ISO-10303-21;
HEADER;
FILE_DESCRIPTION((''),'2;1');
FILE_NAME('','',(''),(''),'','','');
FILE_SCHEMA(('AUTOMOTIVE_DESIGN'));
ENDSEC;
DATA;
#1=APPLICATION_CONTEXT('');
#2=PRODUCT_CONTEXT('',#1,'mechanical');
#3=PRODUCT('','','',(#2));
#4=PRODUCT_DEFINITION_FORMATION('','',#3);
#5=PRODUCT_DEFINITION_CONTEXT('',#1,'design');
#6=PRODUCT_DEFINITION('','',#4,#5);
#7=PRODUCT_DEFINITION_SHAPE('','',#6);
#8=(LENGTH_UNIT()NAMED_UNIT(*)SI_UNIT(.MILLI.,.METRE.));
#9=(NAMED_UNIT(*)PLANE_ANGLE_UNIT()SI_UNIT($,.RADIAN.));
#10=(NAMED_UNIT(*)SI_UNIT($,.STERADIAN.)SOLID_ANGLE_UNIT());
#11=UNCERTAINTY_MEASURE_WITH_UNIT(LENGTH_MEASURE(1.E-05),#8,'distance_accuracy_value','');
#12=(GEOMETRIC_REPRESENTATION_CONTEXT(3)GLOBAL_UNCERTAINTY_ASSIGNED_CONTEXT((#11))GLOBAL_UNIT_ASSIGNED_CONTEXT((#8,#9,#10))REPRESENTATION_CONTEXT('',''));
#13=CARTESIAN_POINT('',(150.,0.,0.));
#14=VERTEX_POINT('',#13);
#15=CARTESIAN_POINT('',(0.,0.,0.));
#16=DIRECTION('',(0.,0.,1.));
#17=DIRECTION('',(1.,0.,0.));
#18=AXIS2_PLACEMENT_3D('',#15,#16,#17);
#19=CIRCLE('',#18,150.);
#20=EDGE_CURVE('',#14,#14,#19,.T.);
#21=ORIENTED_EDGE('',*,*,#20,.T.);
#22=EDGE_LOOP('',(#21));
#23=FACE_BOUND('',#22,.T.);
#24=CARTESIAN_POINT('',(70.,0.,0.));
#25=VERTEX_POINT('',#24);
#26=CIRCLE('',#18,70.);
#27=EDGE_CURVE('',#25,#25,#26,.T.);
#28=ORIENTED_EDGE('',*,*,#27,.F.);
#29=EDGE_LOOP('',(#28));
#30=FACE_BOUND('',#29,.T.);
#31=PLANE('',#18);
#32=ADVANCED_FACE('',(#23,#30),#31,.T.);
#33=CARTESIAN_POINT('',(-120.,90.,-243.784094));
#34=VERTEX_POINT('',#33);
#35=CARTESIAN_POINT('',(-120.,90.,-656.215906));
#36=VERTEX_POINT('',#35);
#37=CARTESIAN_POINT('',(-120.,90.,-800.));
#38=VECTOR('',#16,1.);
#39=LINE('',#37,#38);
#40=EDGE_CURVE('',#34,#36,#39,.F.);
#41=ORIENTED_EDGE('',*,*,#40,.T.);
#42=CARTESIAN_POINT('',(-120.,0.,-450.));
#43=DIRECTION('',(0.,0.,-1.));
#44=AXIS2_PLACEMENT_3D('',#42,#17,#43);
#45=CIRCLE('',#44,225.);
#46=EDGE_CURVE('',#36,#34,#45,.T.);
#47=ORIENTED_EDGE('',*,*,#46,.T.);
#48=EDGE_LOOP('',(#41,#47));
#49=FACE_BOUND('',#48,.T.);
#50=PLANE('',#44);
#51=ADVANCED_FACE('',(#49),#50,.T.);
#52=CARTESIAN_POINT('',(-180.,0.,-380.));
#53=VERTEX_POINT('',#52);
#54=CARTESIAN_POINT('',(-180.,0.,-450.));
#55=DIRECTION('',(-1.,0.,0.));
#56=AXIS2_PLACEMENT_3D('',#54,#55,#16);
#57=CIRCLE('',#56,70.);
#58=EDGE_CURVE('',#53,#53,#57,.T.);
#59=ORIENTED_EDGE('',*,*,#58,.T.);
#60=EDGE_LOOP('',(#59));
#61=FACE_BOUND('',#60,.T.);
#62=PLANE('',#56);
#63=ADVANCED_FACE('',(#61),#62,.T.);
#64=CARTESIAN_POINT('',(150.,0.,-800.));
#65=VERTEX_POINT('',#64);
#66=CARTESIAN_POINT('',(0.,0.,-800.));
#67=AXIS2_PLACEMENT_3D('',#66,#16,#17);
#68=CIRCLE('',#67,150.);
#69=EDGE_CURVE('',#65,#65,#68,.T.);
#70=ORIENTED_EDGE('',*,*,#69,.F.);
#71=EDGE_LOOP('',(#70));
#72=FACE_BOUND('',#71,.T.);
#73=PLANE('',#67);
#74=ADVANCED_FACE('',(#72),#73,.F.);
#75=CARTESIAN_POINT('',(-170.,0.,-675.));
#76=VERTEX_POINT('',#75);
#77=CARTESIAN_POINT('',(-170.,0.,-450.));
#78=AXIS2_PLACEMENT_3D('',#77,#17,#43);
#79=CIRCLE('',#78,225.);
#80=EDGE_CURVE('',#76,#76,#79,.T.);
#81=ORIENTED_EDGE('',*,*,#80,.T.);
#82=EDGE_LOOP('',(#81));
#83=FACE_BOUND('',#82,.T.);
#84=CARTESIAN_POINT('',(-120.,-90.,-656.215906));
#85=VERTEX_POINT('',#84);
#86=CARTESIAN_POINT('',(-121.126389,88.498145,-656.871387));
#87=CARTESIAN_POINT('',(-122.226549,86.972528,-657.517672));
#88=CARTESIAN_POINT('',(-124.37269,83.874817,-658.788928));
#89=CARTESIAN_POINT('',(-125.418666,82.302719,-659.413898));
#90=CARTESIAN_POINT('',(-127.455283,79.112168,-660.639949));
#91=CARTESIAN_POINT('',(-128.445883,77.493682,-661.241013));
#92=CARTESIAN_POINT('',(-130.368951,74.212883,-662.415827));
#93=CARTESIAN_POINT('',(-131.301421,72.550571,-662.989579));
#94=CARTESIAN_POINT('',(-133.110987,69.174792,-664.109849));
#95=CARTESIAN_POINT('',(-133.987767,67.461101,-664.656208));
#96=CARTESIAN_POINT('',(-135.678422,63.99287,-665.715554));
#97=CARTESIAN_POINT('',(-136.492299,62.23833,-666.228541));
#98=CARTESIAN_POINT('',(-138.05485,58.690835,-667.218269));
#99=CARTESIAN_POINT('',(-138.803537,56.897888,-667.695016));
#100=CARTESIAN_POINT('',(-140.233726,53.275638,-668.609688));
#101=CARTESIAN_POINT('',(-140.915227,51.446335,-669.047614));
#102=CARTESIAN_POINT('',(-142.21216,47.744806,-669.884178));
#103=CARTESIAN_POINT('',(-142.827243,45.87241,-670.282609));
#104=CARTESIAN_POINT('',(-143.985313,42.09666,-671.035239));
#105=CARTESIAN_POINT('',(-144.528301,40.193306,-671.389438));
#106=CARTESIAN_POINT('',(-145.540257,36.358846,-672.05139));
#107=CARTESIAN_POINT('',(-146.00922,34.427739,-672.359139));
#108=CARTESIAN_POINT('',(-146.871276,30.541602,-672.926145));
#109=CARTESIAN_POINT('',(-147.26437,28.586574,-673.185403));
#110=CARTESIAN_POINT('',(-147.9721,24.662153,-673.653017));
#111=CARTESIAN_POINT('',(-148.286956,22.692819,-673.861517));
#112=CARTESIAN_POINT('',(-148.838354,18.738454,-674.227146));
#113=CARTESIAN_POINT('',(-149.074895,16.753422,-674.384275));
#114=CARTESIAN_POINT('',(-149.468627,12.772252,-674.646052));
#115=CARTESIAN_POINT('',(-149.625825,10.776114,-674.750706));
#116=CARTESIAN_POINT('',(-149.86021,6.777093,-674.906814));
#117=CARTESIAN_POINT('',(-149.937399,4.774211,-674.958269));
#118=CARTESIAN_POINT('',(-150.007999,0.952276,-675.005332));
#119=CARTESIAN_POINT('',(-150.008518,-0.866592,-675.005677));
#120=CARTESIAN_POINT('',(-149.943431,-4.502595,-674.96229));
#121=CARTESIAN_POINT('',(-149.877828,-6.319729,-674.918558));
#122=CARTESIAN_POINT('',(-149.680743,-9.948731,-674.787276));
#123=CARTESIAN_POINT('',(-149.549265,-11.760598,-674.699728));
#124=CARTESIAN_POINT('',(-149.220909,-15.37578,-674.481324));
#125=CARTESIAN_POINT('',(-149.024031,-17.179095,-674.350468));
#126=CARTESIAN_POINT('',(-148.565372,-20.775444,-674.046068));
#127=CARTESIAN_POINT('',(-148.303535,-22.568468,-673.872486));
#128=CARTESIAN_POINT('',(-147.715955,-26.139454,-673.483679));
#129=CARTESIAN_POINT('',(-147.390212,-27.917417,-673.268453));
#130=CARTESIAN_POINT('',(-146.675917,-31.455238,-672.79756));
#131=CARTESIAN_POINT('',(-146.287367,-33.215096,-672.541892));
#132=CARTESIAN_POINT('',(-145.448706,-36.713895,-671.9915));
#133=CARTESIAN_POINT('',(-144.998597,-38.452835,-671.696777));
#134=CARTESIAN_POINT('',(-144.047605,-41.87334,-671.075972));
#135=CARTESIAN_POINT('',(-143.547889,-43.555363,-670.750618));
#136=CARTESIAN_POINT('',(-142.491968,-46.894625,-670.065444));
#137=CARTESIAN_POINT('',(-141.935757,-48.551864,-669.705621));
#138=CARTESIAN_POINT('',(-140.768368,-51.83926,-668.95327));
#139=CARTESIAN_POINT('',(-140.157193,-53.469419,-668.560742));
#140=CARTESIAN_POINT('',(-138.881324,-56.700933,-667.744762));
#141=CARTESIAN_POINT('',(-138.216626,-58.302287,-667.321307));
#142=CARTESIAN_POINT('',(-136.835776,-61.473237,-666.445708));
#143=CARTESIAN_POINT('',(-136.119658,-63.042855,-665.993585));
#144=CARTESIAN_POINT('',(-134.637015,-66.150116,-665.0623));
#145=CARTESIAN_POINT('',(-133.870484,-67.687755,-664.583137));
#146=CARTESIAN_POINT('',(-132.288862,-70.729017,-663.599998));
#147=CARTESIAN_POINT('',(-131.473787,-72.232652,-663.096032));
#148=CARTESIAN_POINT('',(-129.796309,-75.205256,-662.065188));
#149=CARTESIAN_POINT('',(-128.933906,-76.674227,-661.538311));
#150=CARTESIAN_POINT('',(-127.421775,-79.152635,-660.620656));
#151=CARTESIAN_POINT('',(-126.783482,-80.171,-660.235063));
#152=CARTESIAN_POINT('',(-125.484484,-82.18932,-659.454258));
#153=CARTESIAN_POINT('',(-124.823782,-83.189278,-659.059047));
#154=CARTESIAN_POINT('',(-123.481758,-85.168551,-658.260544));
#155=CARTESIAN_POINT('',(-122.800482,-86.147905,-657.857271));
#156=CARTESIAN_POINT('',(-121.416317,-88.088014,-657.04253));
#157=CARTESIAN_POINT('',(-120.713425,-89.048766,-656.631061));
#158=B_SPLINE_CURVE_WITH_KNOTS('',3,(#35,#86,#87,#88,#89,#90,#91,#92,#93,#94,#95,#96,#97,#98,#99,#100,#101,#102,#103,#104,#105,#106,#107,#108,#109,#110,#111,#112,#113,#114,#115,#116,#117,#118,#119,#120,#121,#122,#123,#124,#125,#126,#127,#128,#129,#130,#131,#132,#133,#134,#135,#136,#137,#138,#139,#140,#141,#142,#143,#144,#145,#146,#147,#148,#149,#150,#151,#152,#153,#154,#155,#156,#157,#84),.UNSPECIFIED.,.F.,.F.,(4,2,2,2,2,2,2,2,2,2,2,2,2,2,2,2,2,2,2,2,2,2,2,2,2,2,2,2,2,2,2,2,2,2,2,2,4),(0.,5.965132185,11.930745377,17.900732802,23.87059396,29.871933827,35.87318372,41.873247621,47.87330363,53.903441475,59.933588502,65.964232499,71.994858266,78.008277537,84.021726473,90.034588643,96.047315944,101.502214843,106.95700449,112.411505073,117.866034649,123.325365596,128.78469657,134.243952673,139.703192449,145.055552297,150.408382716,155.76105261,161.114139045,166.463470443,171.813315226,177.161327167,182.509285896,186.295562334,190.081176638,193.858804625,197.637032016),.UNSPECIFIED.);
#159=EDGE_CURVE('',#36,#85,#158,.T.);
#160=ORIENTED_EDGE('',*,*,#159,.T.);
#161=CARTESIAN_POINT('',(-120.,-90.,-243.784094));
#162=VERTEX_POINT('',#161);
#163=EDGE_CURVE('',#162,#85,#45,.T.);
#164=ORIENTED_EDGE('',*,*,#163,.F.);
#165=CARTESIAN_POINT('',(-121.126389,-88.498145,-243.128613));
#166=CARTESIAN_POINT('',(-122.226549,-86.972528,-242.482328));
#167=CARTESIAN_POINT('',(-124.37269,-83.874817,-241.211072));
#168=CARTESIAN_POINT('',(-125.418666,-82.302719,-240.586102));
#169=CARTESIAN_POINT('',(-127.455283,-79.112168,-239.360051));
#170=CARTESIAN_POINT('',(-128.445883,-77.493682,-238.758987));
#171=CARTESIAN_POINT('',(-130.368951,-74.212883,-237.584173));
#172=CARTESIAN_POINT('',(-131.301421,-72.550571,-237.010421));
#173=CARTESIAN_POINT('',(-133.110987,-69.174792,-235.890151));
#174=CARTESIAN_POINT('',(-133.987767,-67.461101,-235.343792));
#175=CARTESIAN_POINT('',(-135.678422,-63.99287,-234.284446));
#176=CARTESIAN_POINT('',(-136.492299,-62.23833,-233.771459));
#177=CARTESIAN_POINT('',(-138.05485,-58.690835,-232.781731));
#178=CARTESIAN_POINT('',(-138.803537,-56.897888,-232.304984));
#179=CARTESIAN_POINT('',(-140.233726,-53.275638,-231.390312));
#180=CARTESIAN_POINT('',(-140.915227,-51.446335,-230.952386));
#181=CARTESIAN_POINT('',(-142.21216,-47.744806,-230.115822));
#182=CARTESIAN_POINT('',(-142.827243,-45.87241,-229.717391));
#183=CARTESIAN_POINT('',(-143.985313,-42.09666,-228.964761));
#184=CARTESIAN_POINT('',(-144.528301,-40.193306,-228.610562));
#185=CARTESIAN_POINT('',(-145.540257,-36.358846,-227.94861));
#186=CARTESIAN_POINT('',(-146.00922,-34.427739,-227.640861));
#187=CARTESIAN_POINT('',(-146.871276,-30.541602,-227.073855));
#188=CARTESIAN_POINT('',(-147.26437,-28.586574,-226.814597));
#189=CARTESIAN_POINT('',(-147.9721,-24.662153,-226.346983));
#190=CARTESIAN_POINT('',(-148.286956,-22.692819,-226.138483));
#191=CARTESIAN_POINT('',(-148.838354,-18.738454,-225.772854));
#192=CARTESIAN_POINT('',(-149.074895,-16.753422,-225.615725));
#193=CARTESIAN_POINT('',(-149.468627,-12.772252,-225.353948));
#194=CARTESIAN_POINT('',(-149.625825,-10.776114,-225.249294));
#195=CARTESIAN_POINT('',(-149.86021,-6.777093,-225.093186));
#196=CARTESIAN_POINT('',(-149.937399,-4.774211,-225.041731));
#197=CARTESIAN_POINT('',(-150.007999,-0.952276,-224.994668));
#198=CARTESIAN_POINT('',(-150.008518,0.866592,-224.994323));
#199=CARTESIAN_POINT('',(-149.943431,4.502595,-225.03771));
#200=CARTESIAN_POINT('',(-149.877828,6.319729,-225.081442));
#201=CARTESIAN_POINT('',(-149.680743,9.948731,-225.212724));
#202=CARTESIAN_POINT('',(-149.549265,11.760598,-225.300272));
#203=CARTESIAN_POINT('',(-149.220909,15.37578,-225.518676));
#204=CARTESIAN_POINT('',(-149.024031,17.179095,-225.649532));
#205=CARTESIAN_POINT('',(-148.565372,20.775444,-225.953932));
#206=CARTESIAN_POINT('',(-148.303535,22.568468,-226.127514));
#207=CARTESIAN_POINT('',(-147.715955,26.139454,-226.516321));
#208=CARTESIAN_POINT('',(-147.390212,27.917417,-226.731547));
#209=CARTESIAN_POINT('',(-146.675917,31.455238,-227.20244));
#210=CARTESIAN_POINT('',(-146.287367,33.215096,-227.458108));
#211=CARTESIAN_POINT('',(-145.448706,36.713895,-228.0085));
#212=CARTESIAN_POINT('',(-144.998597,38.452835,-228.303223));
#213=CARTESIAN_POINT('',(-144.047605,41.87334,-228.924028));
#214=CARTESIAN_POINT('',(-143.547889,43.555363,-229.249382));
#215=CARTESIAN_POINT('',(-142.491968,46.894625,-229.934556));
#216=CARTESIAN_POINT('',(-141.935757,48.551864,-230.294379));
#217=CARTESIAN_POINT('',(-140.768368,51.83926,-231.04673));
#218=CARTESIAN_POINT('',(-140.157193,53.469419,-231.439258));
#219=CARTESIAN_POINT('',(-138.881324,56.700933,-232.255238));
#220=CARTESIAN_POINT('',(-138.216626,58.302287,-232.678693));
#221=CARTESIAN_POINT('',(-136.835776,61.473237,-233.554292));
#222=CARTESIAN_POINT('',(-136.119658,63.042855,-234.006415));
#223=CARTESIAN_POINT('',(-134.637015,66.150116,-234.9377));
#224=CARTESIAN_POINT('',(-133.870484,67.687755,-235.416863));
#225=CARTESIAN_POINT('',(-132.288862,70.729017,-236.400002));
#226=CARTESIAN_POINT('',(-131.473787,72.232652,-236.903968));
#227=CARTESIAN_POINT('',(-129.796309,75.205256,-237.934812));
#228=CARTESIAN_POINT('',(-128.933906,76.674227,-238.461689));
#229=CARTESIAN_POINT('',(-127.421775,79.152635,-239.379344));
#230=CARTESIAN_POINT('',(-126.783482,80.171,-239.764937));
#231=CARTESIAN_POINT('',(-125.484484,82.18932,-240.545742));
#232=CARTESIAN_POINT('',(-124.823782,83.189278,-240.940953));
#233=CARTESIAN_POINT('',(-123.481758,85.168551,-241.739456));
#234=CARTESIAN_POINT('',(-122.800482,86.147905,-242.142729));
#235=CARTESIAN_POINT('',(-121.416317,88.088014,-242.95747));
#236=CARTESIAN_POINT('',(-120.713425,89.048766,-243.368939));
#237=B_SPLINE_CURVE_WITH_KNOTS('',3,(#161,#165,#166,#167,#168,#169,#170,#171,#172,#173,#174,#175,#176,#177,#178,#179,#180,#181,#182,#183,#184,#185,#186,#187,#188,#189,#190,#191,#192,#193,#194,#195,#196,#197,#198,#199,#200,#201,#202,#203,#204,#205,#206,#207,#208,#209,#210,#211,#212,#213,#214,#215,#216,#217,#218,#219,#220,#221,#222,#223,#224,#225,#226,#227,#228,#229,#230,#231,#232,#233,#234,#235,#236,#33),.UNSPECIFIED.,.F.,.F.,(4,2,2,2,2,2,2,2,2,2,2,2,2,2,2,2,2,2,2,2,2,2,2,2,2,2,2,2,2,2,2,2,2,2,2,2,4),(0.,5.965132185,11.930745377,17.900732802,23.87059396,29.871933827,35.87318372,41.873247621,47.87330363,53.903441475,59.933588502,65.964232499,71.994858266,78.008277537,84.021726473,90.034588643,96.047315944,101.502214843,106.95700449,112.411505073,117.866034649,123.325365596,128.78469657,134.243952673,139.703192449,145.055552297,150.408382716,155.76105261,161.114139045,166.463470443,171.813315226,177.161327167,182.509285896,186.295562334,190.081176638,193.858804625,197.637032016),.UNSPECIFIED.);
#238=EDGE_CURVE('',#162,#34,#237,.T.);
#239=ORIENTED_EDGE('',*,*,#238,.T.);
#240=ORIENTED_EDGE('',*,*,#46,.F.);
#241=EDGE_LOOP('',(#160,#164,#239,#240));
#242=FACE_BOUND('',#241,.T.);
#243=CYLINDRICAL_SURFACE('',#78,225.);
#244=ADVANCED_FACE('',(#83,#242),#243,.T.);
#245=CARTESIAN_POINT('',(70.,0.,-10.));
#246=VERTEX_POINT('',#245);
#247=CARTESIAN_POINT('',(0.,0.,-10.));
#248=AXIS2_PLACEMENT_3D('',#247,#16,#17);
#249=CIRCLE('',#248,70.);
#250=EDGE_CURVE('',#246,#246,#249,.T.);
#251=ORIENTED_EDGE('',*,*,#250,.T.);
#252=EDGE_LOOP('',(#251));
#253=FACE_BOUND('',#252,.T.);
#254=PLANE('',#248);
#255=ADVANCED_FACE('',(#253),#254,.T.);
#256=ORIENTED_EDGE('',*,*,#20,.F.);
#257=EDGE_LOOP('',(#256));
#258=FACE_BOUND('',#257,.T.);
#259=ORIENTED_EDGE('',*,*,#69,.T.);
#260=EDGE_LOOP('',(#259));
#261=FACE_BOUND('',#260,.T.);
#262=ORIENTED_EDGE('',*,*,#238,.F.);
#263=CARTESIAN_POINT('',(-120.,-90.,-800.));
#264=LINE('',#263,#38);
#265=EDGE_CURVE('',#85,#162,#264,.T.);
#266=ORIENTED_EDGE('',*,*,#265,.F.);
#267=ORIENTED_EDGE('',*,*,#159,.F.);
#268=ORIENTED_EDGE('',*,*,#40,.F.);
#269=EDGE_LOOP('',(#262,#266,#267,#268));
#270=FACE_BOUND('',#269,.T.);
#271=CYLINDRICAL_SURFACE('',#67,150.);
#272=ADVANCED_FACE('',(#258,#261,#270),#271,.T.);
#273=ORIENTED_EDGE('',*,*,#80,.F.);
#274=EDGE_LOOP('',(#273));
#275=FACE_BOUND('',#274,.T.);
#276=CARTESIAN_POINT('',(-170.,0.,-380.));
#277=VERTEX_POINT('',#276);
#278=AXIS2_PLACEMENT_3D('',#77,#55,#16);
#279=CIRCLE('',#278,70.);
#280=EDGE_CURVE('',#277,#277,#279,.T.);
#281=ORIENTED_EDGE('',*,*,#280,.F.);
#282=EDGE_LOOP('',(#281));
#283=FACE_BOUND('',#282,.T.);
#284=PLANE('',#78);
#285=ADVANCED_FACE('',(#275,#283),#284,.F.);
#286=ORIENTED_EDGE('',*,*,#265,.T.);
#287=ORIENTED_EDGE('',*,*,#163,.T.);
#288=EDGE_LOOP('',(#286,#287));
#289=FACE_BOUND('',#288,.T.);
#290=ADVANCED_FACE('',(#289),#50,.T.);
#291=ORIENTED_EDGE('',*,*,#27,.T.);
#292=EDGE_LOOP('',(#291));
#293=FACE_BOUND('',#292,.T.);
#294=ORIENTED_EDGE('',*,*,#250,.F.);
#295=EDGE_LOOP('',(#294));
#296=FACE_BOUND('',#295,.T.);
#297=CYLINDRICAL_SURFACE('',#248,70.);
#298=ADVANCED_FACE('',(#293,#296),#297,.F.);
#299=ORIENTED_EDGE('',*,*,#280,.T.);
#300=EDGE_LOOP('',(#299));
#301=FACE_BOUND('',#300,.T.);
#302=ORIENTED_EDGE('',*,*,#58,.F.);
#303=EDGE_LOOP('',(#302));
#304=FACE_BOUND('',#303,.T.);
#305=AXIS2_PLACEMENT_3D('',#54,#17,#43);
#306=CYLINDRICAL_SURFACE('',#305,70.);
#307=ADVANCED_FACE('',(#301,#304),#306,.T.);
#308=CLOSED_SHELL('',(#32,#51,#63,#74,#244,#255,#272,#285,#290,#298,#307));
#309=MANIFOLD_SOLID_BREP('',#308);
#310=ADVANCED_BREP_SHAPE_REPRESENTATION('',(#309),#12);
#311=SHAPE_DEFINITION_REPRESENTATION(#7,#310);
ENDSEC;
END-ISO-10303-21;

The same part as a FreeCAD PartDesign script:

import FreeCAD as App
import Part
import Sketcher
from FreeCAD import Vector

doc = App.newDocument("Part")
params = doc.addObject("Spreadsheet::Sheet", "Params")
for row, (alias, value) in enumerate([
    ("sketch1_diameter", "300 mm"),
    ("pad1_length", "800 mm"),
    ("sketch2_diameter", "450 mm"),
    ("pad2_length", "50 mm"),
    ("sketch3_diameter", "140 mm"),
    ("pocket1_length", "10 mm"),
    ("sketch4_diameter", "140 mm"),
    ("pad3_length", "10 mm"),
], start=1):
    params.set(f"A{row}", alias)
    params.set(f"B{row}", "=" + value)
    params.setAlias(f"B{row}", alias)

body = doc.addObject("PartDesign::Body", "Body")

sketch1 = doc.addObject("Sketcher::SketchObject", "Sketch")
body.addObject(sketch1)
sketch1.AttachmentSupport = (doc.XY_Plane, [""])
sketch1.MapMode = "FlatFace"
sketch1.addGeometry(Part.Circle(Vector(0, 0, 0), Vector(0, 0, 1), 150), False)
sketch1.addConstraint([
    Sketcher.Constraint("Coincident", 0, 3, -1, 1),
    Sketcher.Constraint("Diameter", 0, 300.0),
])
sketch1.setExpression("Constraints[1]", "Params.sketch1_diameter")
pad1 = doc.addObject("PartDesign::Pad", "Pad")
body.addObject(pad1)
pad1.Profile = sketch1
pad1.setExpression("Length", "Params.pad1_length")
pad1.Reversed = True

sketch2 = doc.addObject("Sketcher::SketchObject", "Sketch001")
body.addObject(sketch2)
sketch2.AttachmentSupport = (doc.YZ_Plane, [""])
sketch2.MapMode = "FlatFace"
sketch2.AttachmentOffset = App.Placement(Vector(0, 0, -120), App.Rotation())
sketch2.addGeometry(Part.Circle(Vector(0, -450, 0), Vector(0, 0, 1), 225), False)
sketch2.addConstraint([
    Sketcher.Constraint("PointOnObject", 0, 3, -2),
    Sketcher.Constraint("Diameter", 0, 450.0),
    Sketcher.Constraint("DistanceY", 0, 3, -1, 1, 450.0),
])
sketch2.setExpression("Constraints[1]", "Params.sketch2_diameter")
pad2 = doc.addObject("PartDesign::Pad", "Pad001")
body.addObject(pad2)
pad2.Profile = sketch2
pad2.setExpression("Length", "Params.pad2_length")
pad2.Reversed = True

sketch3 = doc.addObject("Sketcher::SketchObject", "Sketch002")
body.addObject(sketch3)
sketch3.AttachmentSupport = (doc.XY_Plane, [""])
sketch3.MapMode = "FlatFace"
sketch3.addGeometry(Part.Circle(Vector(0, 0, 0), Vector(0, 0, 1), 70), False)
sketch3.addConstraint([
    Sketcher.Constraint("Coincident", 0, 3, -1, 1),
    Sketcher.Constraint("Diameter", 0, 140.0),
])
sketch3.setExpression("Constraints[1]", "Params.sketch3_diameter")
pocket1 = doc.addObject("PartDesign::Pocket", "Pocket")
body.addObject(pocket1)
pocket1.Profile = sketch3
pocket1.setExpression("Length", "Params.pocket1_length")

sketch4 = doc.addObject("Sketcher::SketchObject", "Sketch003")
body.addObject(sketch4)
sketch4.AttachmentSupport = (doc.YZ_Plane, [""])
sketch4.MapMode = "FlatFace"
sketch4.AttachmentOffset = App.Placement(Vector(0, 0, -170), App.Rotation())
sketch4.addGeometry(Part.Circle(Vector(0, -450, 0), Vector(0, 0, 1), 70), False)
sketch4.addConstraint([
    Sketcher.Constraint("PointOnObject", 0, 3, -2),
    Sketcher.Constraint("Diameter", 0, 140.0),
    Sketcher.Constraint("DistanceY", 0, 3, -1, 1, 450.0),
])
sketch4.setExpression("Constraints[1]", "Params.sketch4_diameter")
pad3 = doc.addObject("PartDesign::Pad", "Pad002")
body.addObject(pad3)
pad3.Profile = sketch4
pad3.setExpression("Length", "Params.pad3_length")
pad3.Reversed = True

doc.recompute()
